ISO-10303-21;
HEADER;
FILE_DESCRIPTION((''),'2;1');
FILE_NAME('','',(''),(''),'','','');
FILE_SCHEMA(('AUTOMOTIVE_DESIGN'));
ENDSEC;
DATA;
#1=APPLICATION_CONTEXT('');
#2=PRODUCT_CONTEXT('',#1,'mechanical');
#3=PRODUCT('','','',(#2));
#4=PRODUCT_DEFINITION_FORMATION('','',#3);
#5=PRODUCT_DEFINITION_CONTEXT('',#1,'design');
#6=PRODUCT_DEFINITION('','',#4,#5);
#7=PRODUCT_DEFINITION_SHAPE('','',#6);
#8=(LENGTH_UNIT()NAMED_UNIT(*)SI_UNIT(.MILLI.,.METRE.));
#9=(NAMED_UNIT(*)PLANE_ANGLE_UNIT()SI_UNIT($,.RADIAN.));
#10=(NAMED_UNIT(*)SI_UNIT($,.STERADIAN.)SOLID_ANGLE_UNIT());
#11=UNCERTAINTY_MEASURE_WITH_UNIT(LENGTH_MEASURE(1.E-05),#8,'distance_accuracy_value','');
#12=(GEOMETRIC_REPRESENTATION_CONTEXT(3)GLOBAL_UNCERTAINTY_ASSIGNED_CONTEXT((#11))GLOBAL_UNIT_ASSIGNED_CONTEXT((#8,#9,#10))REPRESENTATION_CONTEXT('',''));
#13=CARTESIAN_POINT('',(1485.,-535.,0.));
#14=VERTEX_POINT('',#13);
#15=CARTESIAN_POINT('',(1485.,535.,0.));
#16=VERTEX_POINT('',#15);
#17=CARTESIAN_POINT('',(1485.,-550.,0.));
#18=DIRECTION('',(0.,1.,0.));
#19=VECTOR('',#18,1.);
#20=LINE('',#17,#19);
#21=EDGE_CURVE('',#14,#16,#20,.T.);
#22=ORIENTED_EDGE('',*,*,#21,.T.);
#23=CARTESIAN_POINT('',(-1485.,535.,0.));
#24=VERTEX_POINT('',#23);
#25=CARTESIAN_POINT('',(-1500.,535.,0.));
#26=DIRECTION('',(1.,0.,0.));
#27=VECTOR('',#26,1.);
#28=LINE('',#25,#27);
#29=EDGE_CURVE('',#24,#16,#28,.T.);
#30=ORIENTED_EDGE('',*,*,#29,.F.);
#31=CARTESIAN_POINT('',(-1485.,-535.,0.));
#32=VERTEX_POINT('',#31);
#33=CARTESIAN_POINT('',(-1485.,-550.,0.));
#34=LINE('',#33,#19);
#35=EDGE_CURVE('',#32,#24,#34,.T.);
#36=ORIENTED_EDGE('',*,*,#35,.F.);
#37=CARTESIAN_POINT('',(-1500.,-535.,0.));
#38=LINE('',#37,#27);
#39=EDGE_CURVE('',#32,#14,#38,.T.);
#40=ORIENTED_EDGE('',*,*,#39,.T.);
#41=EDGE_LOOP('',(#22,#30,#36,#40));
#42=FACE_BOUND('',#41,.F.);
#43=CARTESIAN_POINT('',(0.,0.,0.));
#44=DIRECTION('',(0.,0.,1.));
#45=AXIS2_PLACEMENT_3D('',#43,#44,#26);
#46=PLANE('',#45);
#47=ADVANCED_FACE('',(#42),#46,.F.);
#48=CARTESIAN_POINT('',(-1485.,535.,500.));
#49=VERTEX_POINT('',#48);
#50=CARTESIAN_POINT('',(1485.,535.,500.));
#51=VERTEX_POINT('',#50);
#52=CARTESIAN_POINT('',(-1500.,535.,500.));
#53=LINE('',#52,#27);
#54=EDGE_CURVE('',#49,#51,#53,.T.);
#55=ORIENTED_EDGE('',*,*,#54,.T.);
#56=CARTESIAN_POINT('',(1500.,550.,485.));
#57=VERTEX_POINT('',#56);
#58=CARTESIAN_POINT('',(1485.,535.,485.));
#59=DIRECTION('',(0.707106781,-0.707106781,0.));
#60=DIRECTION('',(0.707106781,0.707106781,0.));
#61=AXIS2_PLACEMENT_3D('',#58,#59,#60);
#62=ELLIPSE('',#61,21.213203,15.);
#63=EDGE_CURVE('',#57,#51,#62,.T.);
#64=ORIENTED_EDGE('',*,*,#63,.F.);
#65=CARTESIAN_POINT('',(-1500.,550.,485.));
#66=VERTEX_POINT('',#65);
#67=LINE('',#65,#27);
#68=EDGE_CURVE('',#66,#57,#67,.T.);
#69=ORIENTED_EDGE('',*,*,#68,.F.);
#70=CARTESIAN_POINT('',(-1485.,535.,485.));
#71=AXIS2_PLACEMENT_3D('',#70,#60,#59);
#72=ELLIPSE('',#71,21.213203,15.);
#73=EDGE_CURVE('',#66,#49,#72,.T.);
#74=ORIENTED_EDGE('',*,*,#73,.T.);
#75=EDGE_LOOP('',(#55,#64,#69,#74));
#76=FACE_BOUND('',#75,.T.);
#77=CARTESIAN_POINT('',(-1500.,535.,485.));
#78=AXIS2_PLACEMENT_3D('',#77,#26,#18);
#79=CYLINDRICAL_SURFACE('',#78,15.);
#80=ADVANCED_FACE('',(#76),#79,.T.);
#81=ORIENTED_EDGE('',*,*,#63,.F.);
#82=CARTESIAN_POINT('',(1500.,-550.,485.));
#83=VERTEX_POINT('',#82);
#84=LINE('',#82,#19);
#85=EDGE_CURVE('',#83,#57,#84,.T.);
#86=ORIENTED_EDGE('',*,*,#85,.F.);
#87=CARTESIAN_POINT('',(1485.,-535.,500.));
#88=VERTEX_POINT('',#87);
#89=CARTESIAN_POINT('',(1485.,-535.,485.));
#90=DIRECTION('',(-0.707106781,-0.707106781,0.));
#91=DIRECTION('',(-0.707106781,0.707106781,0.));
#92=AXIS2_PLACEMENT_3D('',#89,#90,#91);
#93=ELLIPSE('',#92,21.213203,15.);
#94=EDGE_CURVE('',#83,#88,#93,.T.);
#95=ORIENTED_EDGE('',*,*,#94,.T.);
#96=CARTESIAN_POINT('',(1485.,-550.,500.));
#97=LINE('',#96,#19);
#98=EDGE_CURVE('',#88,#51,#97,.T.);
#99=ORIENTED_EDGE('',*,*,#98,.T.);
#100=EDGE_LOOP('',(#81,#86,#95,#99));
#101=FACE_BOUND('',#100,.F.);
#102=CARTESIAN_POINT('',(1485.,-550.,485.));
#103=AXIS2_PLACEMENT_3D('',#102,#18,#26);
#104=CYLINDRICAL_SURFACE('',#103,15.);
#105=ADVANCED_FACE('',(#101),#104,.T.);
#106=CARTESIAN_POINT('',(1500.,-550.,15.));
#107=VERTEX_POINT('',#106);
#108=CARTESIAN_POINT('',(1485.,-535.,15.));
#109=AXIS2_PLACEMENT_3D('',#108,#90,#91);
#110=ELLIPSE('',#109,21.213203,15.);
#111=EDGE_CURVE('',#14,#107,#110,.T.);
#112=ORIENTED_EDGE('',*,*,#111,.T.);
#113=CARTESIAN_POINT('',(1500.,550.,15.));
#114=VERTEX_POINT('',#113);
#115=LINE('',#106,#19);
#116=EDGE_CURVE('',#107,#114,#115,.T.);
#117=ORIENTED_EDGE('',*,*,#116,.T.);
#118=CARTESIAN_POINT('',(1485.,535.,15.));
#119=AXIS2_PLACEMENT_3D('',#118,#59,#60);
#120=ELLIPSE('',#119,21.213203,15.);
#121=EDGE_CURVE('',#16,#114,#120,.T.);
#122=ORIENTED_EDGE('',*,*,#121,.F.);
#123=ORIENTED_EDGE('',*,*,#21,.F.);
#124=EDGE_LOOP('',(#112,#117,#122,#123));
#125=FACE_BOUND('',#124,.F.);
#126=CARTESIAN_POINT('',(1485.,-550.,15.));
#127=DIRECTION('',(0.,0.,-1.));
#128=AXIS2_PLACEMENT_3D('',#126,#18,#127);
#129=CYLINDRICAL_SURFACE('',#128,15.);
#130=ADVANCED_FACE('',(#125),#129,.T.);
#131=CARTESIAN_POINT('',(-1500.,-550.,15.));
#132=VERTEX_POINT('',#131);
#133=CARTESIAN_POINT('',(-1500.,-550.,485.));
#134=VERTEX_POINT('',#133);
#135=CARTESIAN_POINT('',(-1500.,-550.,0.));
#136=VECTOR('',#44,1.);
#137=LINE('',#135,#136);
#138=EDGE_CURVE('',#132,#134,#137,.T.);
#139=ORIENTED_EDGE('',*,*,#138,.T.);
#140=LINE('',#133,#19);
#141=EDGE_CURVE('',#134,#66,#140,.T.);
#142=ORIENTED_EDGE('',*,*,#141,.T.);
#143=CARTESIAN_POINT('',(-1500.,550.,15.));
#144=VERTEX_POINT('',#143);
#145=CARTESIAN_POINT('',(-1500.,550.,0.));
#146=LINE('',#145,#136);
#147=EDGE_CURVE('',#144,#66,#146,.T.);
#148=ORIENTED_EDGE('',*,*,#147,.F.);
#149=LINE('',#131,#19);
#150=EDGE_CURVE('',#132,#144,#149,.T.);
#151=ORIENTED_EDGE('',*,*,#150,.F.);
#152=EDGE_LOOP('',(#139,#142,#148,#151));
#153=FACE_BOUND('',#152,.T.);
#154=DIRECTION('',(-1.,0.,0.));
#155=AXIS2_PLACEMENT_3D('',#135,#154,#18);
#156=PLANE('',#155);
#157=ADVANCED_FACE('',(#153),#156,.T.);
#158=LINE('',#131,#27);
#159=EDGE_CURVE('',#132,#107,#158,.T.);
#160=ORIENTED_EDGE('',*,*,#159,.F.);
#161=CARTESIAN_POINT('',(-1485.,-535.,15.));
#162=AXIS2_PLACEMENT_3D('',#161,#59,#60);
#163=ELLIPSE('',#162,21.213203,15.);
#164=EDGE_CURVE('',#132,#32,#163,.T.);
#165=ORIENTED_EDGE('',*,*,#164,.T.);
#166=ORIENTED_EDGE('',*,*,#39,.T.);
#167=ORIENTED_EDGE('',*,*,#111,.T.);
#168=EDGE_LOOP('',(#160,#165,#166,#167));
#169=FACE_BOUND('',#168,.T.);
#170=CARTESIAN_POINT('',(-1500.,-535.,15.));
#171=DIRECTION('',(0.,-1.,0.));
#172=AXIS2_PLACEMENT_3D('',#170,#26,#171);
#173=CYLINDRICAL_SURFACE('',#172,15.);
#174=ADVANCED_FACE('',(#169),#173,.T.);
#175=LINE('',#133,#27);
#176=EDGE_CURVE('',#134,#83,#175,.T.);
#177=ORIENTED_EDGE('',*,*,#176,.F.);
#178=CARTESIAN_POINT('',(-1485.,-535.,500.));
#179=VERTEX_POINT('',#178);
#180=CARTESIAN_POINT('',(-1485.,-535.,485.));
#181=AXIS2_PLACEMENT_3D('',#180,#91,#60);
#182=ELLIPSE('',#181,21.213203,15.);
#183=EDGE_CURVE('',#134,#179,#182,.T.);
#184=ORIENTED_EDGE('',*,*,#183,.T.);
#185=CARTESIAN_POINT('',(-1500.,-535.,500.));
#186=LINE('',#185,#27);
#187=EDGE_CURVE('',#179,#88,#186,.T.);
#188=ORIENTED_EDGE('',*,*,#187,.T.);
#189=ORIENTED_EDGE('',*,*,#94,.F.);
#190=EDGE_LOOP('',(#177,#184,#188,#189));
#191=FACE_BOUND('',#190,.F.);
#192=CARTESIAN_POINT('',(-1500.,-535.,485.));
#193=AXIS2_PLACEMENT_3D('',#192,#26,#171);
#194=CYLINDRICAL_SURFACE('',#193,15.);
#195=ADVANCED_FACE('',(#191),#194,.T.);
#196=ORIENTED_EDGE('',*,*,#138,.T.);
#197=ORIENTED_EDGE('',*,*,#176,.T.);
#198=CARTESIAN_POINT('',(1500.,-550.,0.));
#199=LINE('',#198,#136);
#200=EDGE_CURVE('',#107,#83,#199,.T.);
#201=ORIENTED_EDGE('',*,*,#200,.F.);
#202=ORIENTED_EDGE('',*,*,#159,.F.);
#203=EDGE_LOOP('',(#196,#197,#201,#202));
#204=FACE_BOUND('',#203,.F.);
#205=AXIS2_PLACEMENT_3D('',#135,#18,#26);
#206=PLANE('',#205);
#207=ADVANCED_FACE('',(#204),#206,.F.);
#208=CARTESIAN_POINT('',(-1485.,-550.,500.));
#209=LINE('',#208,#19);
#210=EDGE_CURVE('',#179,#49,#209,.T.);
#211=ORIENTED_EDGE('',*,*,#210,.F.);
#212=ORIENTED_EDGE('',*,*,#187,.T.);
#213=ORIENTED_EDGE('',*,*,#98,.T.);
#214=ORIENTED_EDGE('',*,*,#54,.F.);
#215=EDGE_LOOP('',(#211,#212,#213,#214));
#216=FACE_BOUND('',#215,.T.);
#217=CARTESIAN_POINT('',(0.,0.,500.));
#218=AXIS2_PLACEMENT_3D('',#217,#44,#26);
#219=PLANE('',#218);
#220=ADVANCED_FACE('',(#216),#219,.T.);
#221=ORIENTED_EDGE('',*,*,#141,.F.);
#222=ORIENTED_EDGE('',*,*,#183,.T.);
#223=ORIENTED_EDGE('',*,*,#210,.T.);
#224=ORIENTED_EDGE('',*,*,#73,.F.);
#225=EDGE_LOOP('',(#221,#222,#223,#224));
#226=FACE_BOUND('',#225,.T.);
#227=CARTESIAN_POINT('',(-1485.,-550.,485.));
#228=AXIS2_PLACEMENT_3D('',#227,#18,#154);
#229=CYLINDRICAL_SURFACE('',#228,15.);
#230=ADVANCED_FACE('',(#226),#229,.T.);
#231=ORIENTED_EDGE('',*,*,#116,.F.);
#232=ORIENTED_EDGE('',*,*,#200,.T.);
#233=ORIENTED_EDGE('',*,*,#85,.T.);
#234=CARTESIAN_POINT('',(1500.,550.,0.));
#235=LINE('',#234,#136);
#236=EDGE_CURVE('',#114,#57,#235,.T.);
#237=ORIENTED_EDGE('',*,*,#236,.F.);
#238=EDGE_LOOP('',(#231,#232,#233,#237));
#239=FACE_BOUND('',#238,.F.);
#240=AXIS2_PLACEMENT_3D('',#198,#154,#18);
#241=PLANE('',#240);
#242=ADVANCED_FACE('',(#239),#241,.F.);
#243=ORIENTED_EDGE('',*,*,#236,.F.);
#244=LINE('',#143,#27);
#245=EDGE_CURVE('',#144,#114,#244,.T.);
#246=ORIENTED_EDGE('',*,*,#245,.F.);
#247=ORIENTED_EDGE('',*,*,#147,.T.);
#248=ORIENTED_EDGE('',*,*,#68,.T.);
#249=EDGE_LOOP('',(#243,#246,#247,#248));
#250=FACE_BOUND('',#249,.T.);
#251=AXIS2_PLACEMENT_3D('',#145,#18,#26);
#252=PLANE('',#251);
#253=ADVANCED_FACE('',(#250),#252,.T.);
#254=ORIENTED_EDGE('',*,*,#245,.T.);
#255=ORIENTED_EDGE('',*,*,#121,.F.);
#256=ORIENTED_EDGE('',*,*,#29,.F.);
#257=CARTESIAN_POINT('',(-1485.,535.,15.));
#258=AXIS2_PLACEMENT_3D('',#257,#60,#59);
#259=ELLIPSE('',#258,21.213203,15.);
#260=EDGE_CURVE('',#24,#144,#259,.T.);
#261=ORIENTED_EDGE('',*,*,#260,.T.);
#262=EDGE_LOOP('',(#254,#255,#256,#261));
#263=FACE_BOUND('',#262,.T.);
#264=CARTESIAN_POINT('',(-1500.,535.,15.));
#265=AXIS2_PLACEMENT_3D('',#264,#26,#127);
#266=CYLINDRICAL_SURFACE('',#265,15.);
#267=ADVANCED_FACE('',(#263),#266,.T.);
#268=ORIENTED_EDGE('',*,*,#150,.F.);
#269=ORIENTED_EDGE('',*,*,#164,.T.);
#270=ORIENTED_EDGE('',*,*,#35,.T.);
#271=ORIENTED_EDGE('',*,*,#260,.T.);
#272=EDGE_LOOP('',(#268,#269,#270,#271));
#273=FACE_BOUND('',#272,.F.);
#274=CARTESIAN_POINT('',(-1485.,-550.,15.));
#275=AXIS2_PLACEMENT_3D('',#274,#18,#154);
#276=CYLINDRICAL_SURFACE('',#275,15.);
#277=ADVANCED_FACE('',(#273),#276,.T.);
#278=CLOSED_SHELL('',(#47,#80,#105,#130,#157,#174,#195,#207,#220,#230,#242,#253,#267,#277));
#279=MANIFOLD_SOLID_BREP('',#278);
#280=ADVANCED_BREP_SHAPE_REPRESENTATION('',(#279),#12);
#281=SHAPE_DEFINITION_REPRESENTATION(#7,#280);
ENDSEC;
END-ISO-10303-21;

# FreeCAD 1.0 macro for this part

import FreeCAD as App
import Part
import Sketcher
Q = App.Units.Quantity


def edges_at(feature, points):
    """Names of the edges that pass closest to the given points."""
    edges = feature.Shape.Edges
    near = lambda p: min(range(len(edges)), key=lambda i: edges[i].distToShape(Part.Vertex(*p))[0])
    return sorted({f"Edge{near(p) + 1}" for p in points})


def add_polygon(sketch, points):
    """Adds a closed chain of lines whose ends are joined by coincident constraints."""
    first, n = sketch.GeometryCount, len(points)
    for a, b in zip(points, points[1:] + points[:1]):
        sketch.addGeometry(Part.LineSegment(App.Vector(*a, 0), App.Vector(*b, 0)), False)
    for i in range(n):
        sketch.addConstraint(Sketcher.Constraint("Coincident", first + i, 2, first + (i + 1) % n, 1))

doc = App.newDocument("Part")
body = doc.addObject("PartDesign::Body", "Body")

# Sketch on XY plane
sketch1 = body.newObject("Sketcher::SketchObject", "Sketch")
sketch1.AttachmentSupport = (doc.getObject("XY_Plane"), [""])
sketch1.MapMode = "FlatFace"
add_polygon(sketch1, [(-1500, 550), (-1500, -550), (1500, -550), (1500, 550)])  # lines 0-3
sketch1.addConstraint([
    Sketcher.Constraint("Vertical", 0),
    Sketcher.Constraint("Horizontal", 1),
    Sketcher.Constraint("Vertical", 2),
    Sketcher.Constraint("Horizontal", 3),
    Sketcher.Constraint("Symmetric", 0, 2, 2, 2, -1, 1),
    Sketcher.Constraint("DistanceX", 1, 1, 1, 2, Q("3000 mm")),
    Sketcher.Constraint("DistanceY", 0, 2, 0, 1, Q("1100 mm")),
])
pad1 = body.newObject("PartDesign::Pad", "Pad")
pad1.Profile = sketch1
pad1.Length = 500
doc.recompute()

fillet = body.newObject("PartDesign::Fillet", "Fillet")
fillet.Base = (pad1, edges_at(pad1, [
    (0, 550, 500),
    (1500, 0, 500),
    (0, -550, 500),
    (-1500, 0, 500),
]))
fillet.Radius = 15
doc.recompute()

fillet2 = body.newObject("PartDesign::Fillet", "Fillet001")
fillet2.Base = (fillet, edges_at(fillet, [
    (0, 550, 0),
    (1500, 0, 0),
    (0, -550, 0),
    (-1500, 0, 0),
]))
fillet2.Radius = 15

doc.recompute()
